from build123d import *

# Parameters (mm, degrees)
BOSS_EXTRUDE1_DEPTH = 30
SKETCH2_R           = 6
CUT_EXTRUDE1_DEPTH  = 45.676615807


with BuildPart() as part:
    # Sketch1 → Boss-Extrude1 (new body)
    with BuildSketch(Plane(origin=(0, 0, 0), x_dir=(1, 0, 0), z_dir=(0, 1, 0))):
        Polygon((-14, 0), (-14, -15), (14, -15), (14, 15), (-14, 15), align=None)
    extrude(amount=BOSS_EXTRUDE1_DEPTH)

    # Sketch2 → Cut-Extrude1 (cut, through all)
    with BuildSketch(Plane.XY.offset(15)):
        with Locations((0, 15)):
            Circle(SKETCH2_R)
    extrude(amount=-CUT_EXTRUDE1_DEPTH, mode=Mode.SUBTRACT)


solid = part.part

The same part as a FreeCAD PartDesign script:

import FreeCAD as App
import Part
import Sketcher

V = App.Vector


def add_polygon(sketch, points):
    """Adds a closed chain of lines whose ends are joined by coincident constraints."""
    first, n = sketch.GeometryCount, len(points)
    for a, b in zip(points, points[1:] + points[:1]):
        sketch.addGeometry(Part.LineSegment(App.Vector(*a, 0), App.Vector(*b, 0)), False)
    for i in range(n):
        sketch.addConstraint(Sketcher.Constraint("Coincident", first + i, 2, first + (i + 1) % n, 1))

doc = App.newDocument("Part")
body = doc.addObject("PartDesign::Body", "Body")

sketch1 = doc.addObject("Sketcher::SketchObject", "Sketch")
body.addObject(sketch1)
sketch1.AttachmentSupport = (doc.XZ_Plane, [""])
sketch1.MapMode = "FlatFace"
add_polygon(sketch1, [(-14, 15), (14, 15), (14, -15), (-14, -15)])
sketch1.addConstraint([
    Sketcher.Constraint("Horizontal", 0),
    Sketcher.Constraint("Vertical", 1),
    Sketcher.Constraint("Horizontal", 2),
    Sketcher.Constraint("Vertical", 3),
    Sketcher.Constraint("Symmetric", 0, 2, 2, 2, -1, 1),
    Sketcher.Constraint("DistanceX", 0, 1, 0, 2, 28.0),
    Sketcher.Constraint("DistanceY", 1, 2, 1, 1, 30.0),
])
pad1 = doc.addObject("PartDesign::Pad", "Pad")
body.addObject(pad1)
pad1.Profile = sketch1
pad1.Length = 30
pad1.Reversed = True

sketch2 = doc.addObject("Sketcher::SketchObject", "Sketch001")
body.addObject(sketch2)
sketch2.AttachmentSupport = (doc.XY_Plane, [""])
sketch2.MapMode = "FlatFace"
sketch2.AttachmentOffset = App.Placement(V(0, 0, 15), App.Rotation())
sketch2.addGeometry(Part.Circle(V(0, 15, 0), V(0, 0, 1), 6), False)
sketch2.addConstraint([
    Sketcher.Constraint("PointOnObject", 0, 3, -2),
    Sketcher.Constraint("Diameter", 0, 12.0),
    Sketcher.Constraint("DistanceY", -1, 1, 0, 3, 15.0),
])
pocket1 = doc.addObject("PartDesign::Pocket", "Pocket")
body.addObject(pocket1)
pocket1.Profile = sketch2
pocket1.Type = "ThroughAll"

doc.recompute()
